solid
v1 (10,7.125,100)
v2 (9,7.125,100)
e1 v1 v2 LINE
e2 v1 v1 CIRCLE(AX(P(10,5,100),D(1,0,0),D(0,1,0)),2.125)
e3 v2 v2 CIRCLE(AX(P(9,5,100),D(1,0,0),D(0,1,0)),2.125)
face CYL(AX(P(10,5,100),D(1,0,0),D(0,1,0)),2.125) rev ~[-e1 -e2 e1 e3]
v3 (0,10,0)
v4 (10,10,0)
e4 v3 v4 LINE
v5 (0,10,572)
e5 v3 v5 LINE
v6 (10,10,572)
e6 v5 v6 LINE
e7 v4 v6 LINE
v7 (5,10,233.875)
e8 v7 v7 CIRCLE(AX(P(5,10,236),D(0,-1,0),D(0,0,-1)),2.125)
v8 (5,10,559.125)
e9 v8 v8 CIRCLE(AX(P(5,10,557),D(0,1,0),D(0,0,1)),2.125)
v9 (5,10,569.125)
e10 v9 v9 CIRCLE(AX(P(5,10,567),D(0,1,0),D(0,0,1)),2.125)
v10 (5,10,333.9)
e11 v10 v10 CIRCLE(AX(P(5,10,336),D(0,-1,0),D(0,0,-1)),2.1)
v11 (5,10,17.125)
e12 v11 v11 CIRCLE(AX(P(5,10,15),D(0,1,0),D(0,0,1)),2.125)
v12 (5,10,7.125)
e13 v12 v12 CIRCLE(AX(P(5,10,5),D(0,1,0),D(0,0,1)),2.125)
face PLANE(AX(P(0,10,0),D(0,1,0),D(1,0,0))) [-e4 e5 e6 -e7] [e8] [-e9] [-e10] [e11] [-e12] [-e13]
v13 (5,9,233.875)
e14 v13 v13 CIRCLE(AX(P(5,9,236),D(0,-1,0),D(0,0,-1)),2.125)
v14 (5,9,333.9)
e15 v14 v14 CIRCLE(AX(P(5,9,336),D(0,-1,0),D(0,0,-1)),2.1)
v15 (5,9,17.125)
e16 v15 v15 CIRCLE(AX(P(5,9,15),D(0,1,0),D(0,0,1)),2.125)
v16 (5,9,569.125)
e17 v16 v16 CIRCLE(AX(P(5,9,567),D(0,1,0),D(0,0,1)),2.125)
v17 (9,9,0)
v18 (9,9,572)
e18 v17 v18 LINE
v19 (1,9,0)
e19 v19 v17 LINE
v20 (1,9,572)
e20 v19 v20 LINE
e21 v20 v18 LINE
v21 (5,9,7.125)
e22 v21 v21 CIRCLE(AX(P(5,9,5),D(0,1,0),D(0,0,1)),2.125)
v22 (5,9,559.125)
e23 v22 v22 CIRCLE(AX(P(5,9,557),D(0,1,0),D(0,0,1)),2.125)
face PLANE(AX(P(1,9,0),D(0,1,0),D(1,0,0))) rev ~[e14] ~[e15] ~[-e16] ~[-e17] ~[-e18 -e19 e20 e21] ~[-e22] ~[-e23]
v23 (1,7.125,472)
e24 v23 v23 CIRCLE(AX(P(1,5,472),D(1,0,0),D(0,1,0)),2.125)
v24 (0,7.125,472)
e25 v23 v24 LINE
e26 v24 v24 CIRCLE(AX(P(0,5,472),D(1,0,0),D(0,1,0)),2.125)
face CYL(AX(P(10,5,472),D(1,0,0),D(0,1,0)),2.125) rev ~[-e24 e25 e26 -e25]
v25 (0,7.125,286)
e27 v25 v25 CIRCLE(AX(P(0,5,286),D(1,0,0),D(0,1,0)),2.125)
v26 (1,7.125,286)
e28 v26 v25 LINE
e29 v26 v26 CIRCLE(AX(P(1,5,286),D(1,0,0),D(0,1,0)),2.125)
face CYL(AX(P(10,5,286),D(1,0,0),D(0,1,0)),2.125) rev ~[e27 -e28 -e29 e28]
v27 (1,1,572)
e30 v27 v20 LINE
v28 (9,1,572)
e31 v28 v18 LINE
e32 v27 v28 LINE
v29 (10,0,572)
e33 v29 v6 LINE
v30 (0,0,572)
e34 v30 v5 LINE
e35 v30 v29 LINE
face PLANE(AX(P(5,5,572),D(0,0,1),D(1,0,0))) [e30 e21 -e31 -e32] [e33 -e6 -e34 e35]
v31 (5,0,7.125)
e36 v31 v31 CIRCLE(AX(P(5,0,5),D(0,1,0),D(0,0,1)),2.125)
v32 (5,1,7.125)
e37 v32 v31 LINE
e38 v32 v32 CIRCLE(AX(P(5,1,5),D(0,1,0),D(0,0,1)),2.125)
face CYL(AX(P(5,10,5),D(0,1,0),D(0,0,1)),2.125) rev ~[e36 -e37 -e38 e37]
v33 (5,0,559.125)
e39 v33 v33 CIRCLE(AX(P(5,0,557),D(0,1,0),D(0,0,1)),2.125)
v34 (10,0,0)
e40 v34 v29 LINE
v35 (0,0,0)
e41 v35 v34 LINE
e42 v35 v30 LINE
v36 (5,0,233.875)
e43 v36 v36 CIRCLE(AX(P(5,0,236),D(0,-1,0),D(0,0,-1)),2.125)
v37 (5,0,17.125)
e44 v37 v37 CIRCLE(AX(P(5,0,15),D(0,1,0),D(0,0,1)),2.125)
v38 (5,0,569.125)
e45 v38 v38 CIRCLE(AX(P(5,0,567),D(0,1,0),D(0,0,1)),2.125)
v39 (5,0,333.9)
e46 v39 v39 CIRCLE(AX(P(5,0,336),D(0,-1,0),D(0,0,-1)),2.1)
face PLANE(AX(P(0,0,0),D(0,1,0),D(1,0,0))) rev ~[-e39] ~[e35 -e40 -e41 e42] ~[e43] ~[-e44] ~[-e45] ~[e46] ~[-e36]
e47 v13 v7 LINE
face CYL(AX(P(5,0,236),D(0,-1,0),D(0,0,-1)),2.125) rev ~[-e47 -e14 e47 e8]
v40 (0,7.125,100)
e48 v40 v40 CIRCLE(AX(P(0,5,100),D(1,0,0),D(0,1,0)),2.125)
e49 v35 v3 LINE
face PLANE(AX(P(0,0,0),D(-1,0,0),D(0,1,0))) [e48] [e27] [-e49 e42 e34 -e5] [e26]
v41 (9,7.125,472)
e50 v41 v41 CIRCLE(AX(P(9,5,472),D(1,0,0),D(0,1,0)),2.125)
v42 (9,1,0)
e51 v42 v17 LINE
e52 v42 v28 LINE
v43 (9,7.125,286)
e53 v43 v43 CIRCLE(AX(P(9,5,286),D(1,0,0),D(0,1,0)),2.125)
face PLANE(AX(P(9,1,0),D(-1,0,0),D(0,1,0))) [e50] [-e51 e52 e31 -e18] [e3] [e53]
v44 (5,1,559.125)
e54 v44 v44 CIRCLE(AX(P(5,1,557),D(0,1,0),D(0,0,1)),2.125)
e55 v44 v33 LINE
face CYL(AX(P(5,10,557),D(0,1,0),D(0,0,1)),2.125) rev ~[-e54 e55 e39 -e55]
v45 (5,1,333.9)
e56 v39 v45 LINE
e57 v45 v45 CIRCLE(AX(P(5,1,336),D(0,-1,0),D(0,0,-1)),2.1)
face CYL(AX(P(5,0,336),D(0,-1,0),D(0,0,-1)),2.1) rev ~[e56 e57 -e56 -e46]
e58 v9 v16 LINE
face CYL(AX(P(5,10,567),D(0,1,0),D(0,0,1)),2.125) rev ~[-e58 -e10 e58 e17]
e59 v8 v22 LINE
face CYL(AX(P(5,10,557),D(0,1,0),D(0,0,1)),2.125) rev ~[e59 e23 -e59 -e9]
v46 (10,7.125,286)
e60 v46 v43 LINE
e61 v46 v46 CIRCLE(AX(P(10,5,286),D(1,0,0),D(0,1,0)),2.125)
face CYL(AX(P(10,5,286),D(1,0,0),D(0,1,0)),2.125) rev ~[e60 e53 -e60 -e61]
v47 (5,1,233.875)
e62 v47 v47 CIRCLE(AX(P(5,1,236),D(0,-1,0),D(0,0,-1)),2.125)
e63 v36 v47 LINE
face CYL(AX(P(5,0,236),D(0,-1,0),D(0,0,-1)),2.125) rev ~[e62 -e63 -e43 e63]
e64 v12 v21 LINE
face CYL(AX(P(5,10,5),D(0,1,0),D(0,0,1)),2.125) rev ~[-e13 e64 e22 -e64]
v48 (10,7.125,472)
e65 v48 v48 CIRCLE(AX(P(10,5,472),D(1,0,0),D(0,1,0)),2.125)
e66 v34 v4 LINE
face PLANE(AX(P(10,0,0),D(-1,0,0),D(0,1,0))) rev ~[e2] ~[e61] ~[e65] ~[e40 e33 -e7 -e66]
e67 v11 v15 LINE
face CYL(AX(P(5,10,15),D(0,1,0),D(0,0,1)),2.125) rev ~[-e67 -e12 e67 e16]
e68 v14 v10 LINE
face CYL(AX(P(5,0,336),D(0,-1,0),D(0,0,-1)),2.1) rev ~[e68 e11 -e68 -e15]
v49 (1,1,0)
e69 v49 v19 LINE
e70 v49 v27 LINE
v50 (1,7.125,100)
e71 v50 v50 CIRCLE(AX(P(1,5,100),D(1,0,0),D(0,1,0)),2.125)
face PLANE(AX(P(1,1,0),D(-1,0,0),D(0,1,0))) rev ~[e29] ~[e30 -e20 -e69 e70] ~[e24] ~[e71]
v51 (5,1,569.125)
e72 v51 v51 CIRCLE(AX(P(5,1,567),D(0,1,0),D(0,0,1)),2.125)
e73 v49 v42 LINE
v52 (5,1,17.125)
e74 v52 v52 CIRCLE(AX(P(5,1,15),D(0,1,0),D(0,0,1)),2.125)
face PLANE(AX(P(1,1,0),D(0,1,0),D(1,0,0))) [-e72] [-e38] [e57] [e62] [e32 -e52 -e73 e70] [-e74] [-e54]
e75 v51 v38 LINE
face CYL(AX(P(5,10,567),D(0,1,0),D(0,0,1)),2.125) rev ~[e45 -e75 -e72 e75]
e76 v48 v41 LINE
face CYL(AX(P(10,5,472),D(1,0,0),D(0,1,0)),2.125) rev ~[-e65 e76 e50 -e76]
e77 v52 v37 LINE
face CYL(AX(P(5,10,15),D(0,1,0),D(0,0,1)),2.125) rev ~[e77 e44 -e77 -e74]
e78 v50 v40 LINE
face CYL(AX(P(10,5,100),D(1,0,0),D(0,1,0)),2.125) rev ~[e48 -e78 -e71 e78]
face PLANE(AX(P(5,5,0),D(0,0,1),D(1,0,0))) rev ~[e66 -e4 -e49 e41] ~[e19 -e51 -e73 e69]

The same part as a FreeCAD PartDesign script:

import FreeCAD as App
import Part
import Sketcher
from FreeCAD import Vector

doc = App.newDocument("Part")
body = doc.addObject("PartDesign::Body", "Body")

# Sketch on XY plane
sketch1 = body.newObject("Sketcher::SketchObject", "Sketch")
sketch1.AttachmentSupport = (doc.getObject("XY_Plane"), [""])
sketch1.MapMode = "FlatFace"
sketch1.addGeometry([
    Part.LineSegment(Vector(0, 10, 0), Vector(0, 0, 0)),  # 0
    Part.LineSegment(Vector(0, 0, 0), Vector(10, 0, 0)),  # 1
    Part.LineSegment(Vector(10, 0, 0), Vector(10, 10, 0)),  # 2
    Part.LineSegment(Vector(10, 10, 0), Vector(0, 10, 0)),  # 3
    Part.LineSegment(Vector(9, 1, 0), Vector(1, 1, 0)),  # 4
    Part.LineSegment(Vector(1, 1, 0), Vector(1, 9, 0)),  # 5
    Part.LineSegment(Vector(1, 9, 0), Vector(9, 9, 0)),  # 6
    Part.LineSegment(Vector(9, 9, 0), Vector(9, 1, 0)),  # 7
], False)
sketch1.addConstraint([
    Sketcher.Constraint("Coincident", 0, 2, 1, 1),
    Sketcher.Constraint("Coincident", 1, 2, 2, 1),
    Sketcher.Constraint("Coincident", 2, 2, 3, 1),
    Sketcher.Constraint("Coincident", 3, 2, 0, 1),
    Sketcher.Constraint("Coincident", 4, 2, 5, 1),
    Sketcher.Constraint("Coincident", 5, 2, 6, 1),
    Sketcher.Constraint("Coincident", 6, 2, 7, 1),
    Sketcher.Constraint("Coincident", 7, 2, 4, 1),
    Sketcher.Constraint("Vertical", 0),
    Sketcher.Constraint("Horizontal", 1),
    Sketcher.Constraint("Vertical", 2),
    Sketcher.Constraint("Horizontal", 3),
    Sketcher.Constraint("Horizontal", 4),
    Sketcher.Constraint("Vertical", 5),
    Sketcher.Constraint("Horizontal", 6),
    Sketcher.Constraint("Vertical", 7),
    Sketcher.Constraint("Coincident", 0, 2, -1, 1),
    Sketcher.Constraint("Equal", 3, 0),
    Sketcher.Constraint("Equal", 6, 5),
    Sketcher.Constraint("DistanceX", 1, 1, 1, 2, 10.0),
    Sketcher.Constraint("DistanceX", 4, 2, 4, 1, 8.0),
    Sketcher.Constraint("DistanceX", -1, 1, 4, 2, 1.0),
    Sketcher.Constraint("DistanceY", -1, 1, 4, 2, 1.0),
])
pad1 = body.newObject("PartDesign::Pad", "Pad")
pad1.Profile = sketch1
pad1.Length = 572

# Sketch on XZ plane
sketch2 = body.newObject("Sketcher::SketchObject", "Sketch001")
sketch2.AttachmentSupport = (doc.getObject("XZ_Plane"), [""])
sketch2.MapMode = "FlatFace"
sketch2.AttachmentOffset = App.Placement(Vector(0, 0, -10), App.Rotation())
sketch2.addGeometry([
    Part.Circle(Vector(5, 5, 0), Vector(0, 0, 1), 2.125),
    Part.Circle(Vector(5, 15, 0), Vector(0, 0, 1), 2.125),
    Part.Circle(Vector(5, 557, 0), Vector(0, 0, 1), 2.125),
    Part.Circle(Vector(5, 567, 0), Vector(0, 0, 1), 2.125),
], False)
sketch2.addConstraint([
    Sketcher.Constraint("Equal", 0, 1),
    Sketcher.Constraint("Equal", 1, 2),
    Sketcher.Constraint("Equal", 2, 3),
    Sketcher.Constraint("Vertical", 0, 3, 1, 3),
    Sketcher.Constraint("Vertical", 1, 3, 2, 3),
    Sketcher.Constraint("Vertical", 2, 3, 3, 3),
    Sketcher.Constraint("Diameter", 0, 4.25),
    Sketcher.Constraint("DistanceX", -1, 1, 0, 3, 5.0),
    Sketcher.Constraint("DistanceY", -1, 1, 0, 3, 5.0),
    Sketcher.Constraint("DistanceY", -1, 1, 1, 3, 15.0),
    Sketcher.Constraint("DistanceY", -1, 1, 2, 3, 557.0),
    Sketcher.Constraint("DistanceY", -1, 1, 3, 3, 567.0),
])
pocket1 = body.newObject("PartDesign::Pocket", "Pocket")
pocket1.Profile = sketch2
pocket1.Length = 116
pocket1.Reversed = True

# Sketch on XZ plane
sketch3 = body.newObject("Sketcher::SketchObject", "Sketch002")
sketch3.AttachmentSupport = (doc.getObject("XZ_Plane"), [""])
sketch3.MapMode = "FlatFace"
sketch3.addGeometry([
    Part.Circle(Vector(5, 336, 0), Vector(0, 0, 1), 2.1),
    Part.Circle(Vector(5, 236, 0), Vector(0, 0, 1), 2.125),
], False)
sketch3.addConstraint([
    Sketcher.Constraint("Vertical", 0, 3, 1, 3),
    Sketcher.Constraint("Diameter", 0, 4.2),
    Sketcher.Constraint("Diameter", 1, 4.25),
    Sketcher.Constraint("DistanceX", -1, 1, 0, 3, 5.0),
    Sketcher.Constraint("DistanceY", -1, 1, 0, 3, 336.0),
    Sketcher.Constraint("DistanceY", -1, 1, 1, 3, 236.0),
])
pocket2 = body.newObject("PartDesign::Pocket", "Pocket001")
pocket2.Profile = sketch3
pocket2.Length = 10

# Sketch on YZ plane
sketch4 = body.newObject("Sketcher::SketchObject", "Sketch003")
sketch4.AttachmentSupport = (doc.getObject("YZ_Plane"), [""])
sketch4.MapMode = "FlatFace"
sketch4.AttachmentOffset = App.Placement(Vector(0, 0, 10), App.Rotation())
sketch4.addGeometry([
    Part.Circle(Vector(5, 472, 0), Vector(0, 0, 1), 2.125),
    Part.Circle(Vector(5, 100, 0), Vector(0, 0, 1), 2.125),
    Part.Circle(Vector(5, 286, 0), Vector(0, 0, 1), 2.125),
], False)
sketch4.addConstraint([
    Sketcher.Constraint("Equal", 0, 1),
    Sketcher.Constraint("Equal", 1, 2),
    Sketcher.Constraint("Vertical", 0, 3, 1, 3),
    Sketcher.Constraint("Vertical", 1, 3, 2, 3),
    Sketcher.Constraint("Diameter", 0, 4.25),
    Sketcher.Constraint("DistanceX", -1, 1, 0, 3, 5.0),
    Sketcher.Constraint("DistanceY", -1, 1, 0, 3, 472.0),
    Sketcher.Constraint("DistanceY", -1, 1, 1, 3, 100.0),
    Sketcher.Constraint("DistanceY", -1, 1, 2, 3, 286.0),
])
pocket3 = body.newObject("PartDesign::Pocket", "Pocket002")
pocket3.Profile = sketch4
pocket3.Length = 10

doc.recompute()
